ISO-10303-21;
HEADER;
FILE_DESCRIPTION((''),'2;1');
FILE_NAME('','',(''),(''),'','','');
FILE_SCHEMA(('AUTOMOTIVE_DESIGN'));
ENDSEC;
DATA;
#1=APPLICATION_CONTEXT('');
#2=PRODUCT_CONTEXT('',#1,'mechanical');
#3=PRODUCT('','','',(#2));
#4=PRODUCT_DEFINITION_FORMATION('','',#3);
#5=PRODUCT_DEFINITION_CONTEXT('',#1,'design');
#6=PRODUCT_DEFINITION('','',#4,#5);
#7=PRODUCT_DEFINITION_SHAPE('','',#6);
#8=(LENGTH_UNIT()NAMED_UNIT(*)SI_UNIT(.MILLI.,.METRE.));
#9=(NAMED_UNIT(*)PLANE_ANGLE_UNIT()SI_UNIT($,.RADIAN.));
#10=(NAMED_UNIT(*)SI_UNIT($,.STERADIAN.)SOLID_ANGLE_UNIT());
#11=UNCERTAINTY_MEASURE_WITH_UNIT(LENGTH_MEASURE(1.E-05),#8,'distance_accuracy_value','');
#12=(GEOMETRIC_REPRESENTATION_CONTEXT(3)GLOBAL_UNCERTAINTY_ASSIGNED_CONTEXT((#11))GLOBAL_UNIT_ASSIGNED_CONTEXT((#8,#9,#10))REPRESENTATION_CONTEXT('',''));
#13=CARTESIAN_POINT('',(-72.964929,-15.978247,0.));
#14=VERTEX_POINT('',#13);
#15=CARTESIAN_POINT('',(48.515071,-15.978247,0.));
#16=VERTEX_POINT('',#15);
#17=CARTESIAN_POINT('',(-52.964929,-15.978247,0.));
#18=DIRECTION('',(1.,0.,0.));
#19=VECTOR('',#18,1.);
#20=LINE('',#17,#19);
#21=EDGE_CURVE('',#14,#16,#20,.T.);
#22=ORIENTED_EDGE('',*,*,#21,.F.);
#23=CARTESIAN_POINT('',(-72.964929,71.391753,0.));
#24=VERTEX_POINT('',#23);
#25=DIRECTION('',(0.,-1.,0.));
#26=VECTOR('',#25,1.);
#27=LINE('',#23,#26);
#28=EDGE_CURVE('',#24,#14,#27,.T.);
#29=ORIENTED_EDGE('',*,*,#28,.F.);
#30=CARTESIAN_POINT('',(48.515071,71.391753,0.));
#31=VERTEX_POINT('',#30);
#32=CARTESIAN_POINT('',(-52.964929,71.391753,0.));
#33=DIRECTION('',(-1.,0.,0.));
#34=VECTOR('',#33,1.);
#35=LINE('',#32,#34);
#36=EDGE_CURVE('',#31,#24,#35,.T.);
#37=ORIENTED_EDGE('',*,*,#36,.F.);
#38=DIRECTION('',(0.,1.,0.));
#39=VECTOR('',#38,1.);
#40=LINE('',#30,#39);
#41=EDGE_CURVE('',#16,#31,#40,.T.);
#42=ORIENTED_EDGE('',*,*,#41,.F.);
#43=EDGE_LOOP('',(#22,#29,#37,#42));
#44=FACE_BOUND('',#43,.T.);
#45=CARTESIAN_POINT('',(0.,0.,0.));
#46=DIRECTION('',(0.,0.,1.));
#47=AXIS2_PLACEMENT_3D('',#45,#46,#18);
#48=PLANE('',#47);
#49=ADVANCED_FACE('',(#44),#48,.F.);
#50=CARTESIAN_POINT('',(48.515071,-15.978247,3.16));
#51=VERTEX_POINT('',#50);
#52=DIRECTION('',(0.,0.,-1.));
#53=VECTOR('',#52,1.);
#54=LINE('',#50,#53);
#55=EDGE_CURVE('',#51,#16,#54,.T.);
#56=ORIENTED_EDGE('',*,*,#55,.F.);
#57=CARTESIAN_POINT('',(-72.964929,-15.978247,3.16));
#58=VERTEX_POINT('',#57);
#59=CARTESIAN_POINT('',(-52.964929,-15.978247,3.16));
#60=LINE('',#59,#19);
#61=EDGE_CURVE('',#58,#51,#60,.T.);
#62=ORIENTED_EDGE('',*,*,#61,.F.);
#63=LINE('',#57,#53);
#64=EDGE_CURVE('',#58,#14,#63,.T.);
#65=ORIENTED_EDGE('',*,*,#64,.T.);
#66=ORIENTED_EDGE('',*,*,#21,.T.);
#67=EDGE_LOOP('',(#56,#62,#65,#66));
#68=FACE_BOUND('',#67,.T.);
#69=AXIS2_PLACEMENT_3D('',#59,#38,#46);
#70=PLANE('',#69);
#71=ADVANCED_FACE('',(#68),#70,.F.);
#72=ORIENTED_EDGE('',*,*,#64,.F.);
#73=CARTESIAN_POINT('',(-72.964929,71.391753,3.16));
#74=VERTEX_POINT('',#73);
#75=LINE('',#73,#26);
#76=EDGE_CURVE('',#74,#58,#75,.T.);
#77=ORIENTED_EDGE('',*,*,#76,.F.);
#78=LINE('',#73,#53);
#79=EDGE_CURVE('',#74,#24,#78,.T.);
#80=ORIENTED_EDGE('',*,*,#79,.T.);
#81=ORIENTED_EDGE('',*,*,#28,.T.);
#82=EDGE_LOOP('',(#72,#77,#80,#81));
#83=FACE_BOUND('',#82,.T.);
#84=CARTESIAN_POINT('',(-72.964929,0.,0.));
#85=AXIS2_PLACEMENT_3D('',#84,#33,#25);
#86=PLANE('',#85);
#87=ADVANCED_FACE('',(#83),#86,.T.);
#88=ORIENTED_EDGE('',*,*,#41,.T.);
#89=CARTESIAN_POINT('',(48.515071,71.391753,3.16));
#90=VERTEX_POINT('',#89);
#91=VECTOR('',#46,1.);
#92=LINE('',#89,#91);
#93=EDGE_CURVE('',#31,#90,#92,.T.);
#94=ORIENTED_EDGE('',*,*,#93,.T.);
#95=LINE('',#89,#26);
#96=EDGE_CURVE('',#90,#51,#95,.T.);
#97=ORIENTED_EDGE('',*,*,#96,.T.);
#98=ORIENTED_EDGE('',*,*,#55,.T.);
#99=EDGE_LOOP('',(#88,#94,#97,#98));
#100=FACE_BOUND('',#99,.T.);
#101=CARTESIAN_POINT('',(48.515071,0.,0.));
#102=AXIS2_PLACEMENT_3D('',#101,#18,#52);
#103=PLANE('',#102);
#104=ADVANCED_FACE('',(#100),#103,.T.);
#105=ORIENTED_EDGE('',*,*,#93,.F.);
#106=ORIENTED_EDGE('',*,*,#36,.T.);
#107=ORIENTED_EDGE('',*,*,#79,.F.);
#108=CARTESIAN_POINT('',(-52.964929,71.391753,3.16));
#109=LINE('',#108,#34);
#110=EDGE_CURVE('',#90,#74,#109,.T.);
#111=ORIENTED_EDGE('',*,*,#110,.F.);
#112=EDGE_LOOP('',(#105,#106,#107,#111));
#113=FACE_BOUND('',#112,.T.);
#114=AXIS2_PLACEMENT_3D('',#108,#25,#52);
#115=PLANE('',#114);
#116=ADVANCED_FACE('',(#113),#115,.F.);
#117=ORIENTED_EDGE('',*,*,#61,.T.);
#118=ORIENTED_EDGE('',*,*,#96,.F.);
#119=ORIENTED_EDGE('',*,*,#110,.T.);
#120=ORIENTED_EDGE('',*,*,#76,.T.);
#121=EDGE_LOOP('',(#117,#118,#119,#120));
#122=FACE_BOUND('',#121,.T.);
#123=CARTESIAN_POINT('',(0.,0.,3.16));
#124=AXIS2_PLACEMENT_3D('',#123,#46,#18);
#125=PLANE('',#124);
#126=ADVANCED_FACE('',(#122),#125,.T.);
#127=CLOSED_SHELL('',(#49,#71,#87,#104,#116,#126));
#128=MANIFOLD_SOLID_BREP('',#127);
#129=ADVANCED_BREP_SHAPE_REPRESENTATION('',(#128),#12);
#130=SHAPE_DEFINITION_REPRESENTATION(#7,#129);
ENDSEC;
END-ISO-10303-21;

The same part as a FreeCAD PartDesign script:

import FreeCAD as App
import Part
import Sketcher
from FreeCAD import Vector

doc = App.newDocument("Part")
body = doc.addObject("PartDesign::Body", "Body")

# Sketch on XY plane
sketch1 = body.newObject("Sketcher::SketchObject", "Sketch")
sketch1.AttachmentSupport = (doc.getObject("XY_Plane"), [""])
sketch1.MapMode = "FlatFace"
sketch1.addGeometry(Part.LineSegment(Vector(-52.964929, 71.391753, 0), Vector(-52.964929, -15.978247, 0)), False)
sketch1.addGeometry(Part.LineSegment(Vector(-52.964929, -15.978247, 0), Vector(24.375071, -15.978247, 0)), False)
sketch1.addGeometry(Part.LineSegment(Vector(24.375071, -15.978247, 0), Vector(24.375071, 71.391753, 0)), False)
sketch1.addGeometry(Part.LineSegment(Vector(24.375071, 71.391753, 0), Vector(-52.964929, 71.391753, 0)), False)
sketch1.addConstraint(Sketcher.Constraint("Coincident", 0, 2, 1, 1))
sketch1.addConstraint(Sketcher.Constraint("Coincident", 1, 2, 2, 1))
sketch1.addConstraint(Sketcher.Constraint("Coincident", 2, 2, 3, 1))
sketch1.addConstraint(Sketcher.Constraint("Coincident", 3, 2, 0, 1))
sketch1.addConstraint(Sketcher.Constraint("Vertical", 0))
sketch1.addConstraint(Sketcher.Constraint("Horizontal", 1))
sketch1.addConstraint(Sketcher.Constraint("Vertical", 2))
sketch1.addConstraint(Sketcher.Constraint("Horizontal", 3))
sketch1.addConstraint(Sketcher.Constraint("DistanceX", 1, 1, 1, 2, 77.34))
sketch1.addConstraint(Sketcher.Constraint("DistanceY", 0, 2, 0, 1, 87.37))
sketch1.addConstraint(Sketcher.Constraint("DistanceX", 0, 2, -1, 1, 52.964929))
sketch1.addConstraint(Sketcher.Constraint("DistanceY", 0, 2, -1, 1, 15.978247))
pad1 = body.newObject("PartDesign::Pad", "Pad")
pad1.Profile = sketch1
pad1.Length = 3.16

# Sketch on YZ plane
sketch2 = body.newObject("Sketcher::SketchObject", "Sketch001")
sketch2.AttachmentSupport = (doc.getObject("YZ_Plane"), [""])
sketch2.MapMode = "FlatFace"
sketch2.AttachmentOffset = App.Placement(Vector(0, 0, 24.375071), App.Rotation())
sketch2.addGeometry(Part.LineSegment(Vector(71.391753, 3.16, 0), Vector(-15.978247, 3.16, 0)), False)
sketch2.addGeometry(Part.LineSegment(Vector(-15.978247, 3.16, 0), Vector(-15.978247, 0, 0)), False)
sketch2.addGeometry(Part.LineSegment(Vector(-15.978247, 0, 0), Vector(71.391753, 0, 0)), False)
sketch2.addGeometry(Part.LineSegment(Vector(71.391753, 0, 0), Vector(71.391753, 3.16, 0)), False)
sketch2.addConstraint(Sketcher.Constraint("Coincident", 0, 2, 1, 1))
sketch2.addConstraint(Sketcher.Constraint("Coincident", 1, 2, 2, 1))
sketch2.addConstraint(Sketcher.Constraint("Coincident", 2, 2, 3, 1))
sketch2.addConstraint(Sketcher.Constraint("Coincident", 3, 2, 0, 1))
sketch2.addConstraint(Sketcher.Constraint("Horizontal", 0))
sketch2.addConstraint(Sketcher.Constraint("Vertical", 1))
sketch2.addConstraint(Sketcher.Constraint("Horizontal", 2))
sketch2.addConstraint(Sketcher.Constraint("Vertical", 3))
sketch2.addConstraint(Sketcher.Constraint("PointOnObject", 1, 2, -1))
sketch2.addConstraint(Sketcher.Constraint("DistanceX", 0, 2, 0, 1, 87.37))
sketch2.addConstraint(Sketcher.Constraint("DistanceY", 1, 2, 1, 1, 3.16))
sketch2.addConstraint(Sketcher.Constraint("DistanceX", 0, 2, -1, 1, 15.978247))
pad2 = body.newObject("PartDesign::Pad", "Pad001")
pad2.Profile = sketch2
pad2.Length = 80

# Sketch on YZ plane
sketch3 = body.newObject("Sketcher::SketchObject", "Sketch002")
sketch3.AttachmentSupport = (doc.getObject("YZ_Plane"), [""])
sketch3.MapMode = "FlatFace"
sketch3.AttachmentOffset = App.Placement(Vector(0, 0, -52.964929), App.Rotation())
sketch3.addGeometry(Part.LineSegment(Vector(71.391753, 0, 0), Vector(-15.978247, 0, 0)), False)
sketch3.addGeometry(Part.LineSegment(Vector(-15.978247, 0, 0), Vector(-15.978247, 3.16, 0)), False)
sketch3.addGeometry(Part.LineSegment(Vector(-15.978247, 3.16, 0), Vector(71.391753, 3.16, 0)), False)
sketch3.addGeometry(Part.LineSegment(Vector(71.391753, 3.16, 0), Vector(71.391753, 0, 0)), False)
sketch3.addConstraint(Sketcher.Constraint("Coincident", 0, 2, 1, 1))
sketch3.addConstraint(Sketcher.Constraint("Coincident", 1, 2, 2, 1))
sketch3.addConstraint(Sketcher.Constraint("Coincident", 2, 2, 3, 1))
sketch3.addConstraint(Sketcher.Constraint("Coincident", 3, 2, 0, 1))
sketch3.addConstraint(Sketcher.Constraint("Horizontal", 0))
sketch3.addConstraint(Sketcher.Constraint("Vertical", 1))
sketch3.addConstraint(Sketcher.Constraint("Horizontal", 2))
sketch3.addConstraint(Sketcher.Constraint("Vertical", 3))
sketch3.addConstraint(Sketcher.Constraint("PointOnObject", 0, 2, -1))
sketch3.addConstraint(Sketcher.Constraint("DistanceX", 0, 2, 0, 1, 87.37))
sketch3.addConstraint(Sketcher.Constraint("DistanceY", 1, 1, 1, 2, 3.16))
sketch3.addConstraint(Sketcher.Constraint("DistanceX", 0, 2, -1, 1, 15.978247))
pad3 = body.newObject("PartDesign::Pad", "Pad002")
pad3.Profile = sketch3
pad3.Length = 60
pad3.Reversed = True

# Sketch on YZ plane
sketch4 = body.newObject("Sketcher::SketchObject", "Sketch003")
sketch4.AttachmentSupport = (doc.getObject("YZ_Plane"), [""])
sketch4.MapMode = "FlatFace"
sketch4.AttachmentOffset = App.Placement(Vector(0, 0, 104.375071), App.Rotation())
sketch4.addGeometry(Part.LineSegment(Vector(71.391753, 3.16, 0), Vector(-15.978247, 3.16, 0)), False)
sketch4.addGeometry(Part.LineSegment(Vector(-15.978247, 3.16, 0), Vector(-15.978247, 0, 0)), False)
sketch4.addGeometry(Part.LineSegment(Vector(-15.978247, 0, 0), Vector(71.391753, 0, 0)), False)
sketch4.addGeometry(Part.LineSegment(Vector(71.391753, 0, 0), Vector(71.391753, 3.16, 0)), False)
sketch4.addConstraint(Sketcher.Constraint("Coincident", 0, 2, 1, 1))
sketch4.addConstraint(Sketcher.Constraint("Coincident", 1, 2, 2, 1))
sketch4.addConstraint(Sketcher.Constraint("Coincident", 2, 2, 3, 1))
sketch4.addConstraint(Sketcher.Constraint("Coincident", 3, 2, 0, 1))
sketch4.addConstraint(Sketcher.Constraint("Horizontal", 0))
sketch4.addConstraint(Sketcher.Constraint("Vertical", 1))
sketch4.addConstraint(Sketcher.Constraint("Horizontal", 2))
sketch4.addConstraint(Sketcher.Constraint("Vertical", 3))
sketch4.addConstraint(Sketcher.Constraint("PointOnObject", 1, 2, -1))
sketch4.addConstraint(Sketcher.Constraint("DistanceX", 0, 2, 0, 1, 87.37))
sketch4.addConstraint(Sketcher.Constraint("DistanceY", 1, 2, 1, 1, 3.16))
sketch4.addConstraint(Sketcher.Constraint("DistanceX", 0, 2, -1, 1, 15.978247))
pad4 = body.newObject("PartDesign::Pad", "Pad003")
pad4.Profile = sketch4
pad4.Length = 113

# Sketch on YZ plane
sketch5 = body.newObject("Sketcher::SketchObject", "Sketch004")
sketch5.AttachmentSupport = (doc.getObject("YZ_Plane"), [""])
sketch5.MapMode = "FlatFace"
sketch5.AttachmentOffset = App.Placement(Vector(0, 0, 217.375071), App.Rotation())
sketch5.addGeometry(Part.LineSegment(Vector(71.391753, 3.16, 0), Vector(-15.978247, 3.16, 0)), False)
sketch5.addGeometry(Part.LineSegment(Vector(-15.978247, 3.16, 0), Vector(-15.978247, 0, 0)), False)
sketch5.addGeometry(Part.LineSegment(Vector(-15.978247, 0, 0), Vector(71.391753, 0, 0)), False)
sketch5.addGeometry(Part.LineSegment(Vector(71.391753, 0, 0), Vector(71.391753, 3.16, 0)), False)
sketch5.addConstraint(Sketcher.Constraint("Coincident", 0, 2, 1, 1))
sketch5.addConstraint(Sketcher.Constraint("Coincident", 1, 2, 2, 1))
sketch5.addConstraint(Sketcher.Constraint("Coincident", 2, 2, 3, 1))
sketch5.addConstraint(Sketcher.Constraint("Coincident", 3, 2, 0, 1))
sketch5.addConstraint(Sketcher.Constraint("Horizontal", 0))
sketch5.addConstraint(Sketcher.Constraint("Vertical", 1))
sketch5.addConstraint(Sketcher.Constraint("Horizontal", 2))
sketch5.addConstraint(Sketcher.Constraint("Vertical", 3))
sketch5.addConstraint(Sketcher.Constraint("PointOnObject", 1, 2, -1))
sketch5.addConstraint(Sketcher.Constraint("DistanceX", 0, 2, 0, 1, 87.37))
sketch5.addConstraint(Sketcher.Constraint("DistanceY", 1, 2, 1, 1, 3.16))
sketch5.addConstraint(Sketcher.Constraint("DistanceX", 0, 2, -1, 1, 15.978247))
pocket1 = body.newObject("PartDesign::Pocket", "Pocket")
pocket1.Profile = sketch5
pocket1.Length = 17.86

# Sketch on XY plane
sketch6 = body.newObject("Sketcher::SketchObject", "Sketch005")
sketch6.AttachmentSupport = (doc.getObject("XY_Plane"), [""])
sketch6.MapMode = "FlatFace"
sketch6.AttachmentOffset = App.Placement(Vector(0, 0, 3.16), App.Rotation())
sketch6.addGeometry(Part.Circle(Vector(175.79356, 23.475298, 0), Vector(0, 0, 1), 12.75), False)
sketch6.addConstraint(Sketcher.Constraint("Diameter", 0, 25.5))
sketch6.addConstraint(Sketcher.Constraint("DistanceX", -1, 1, 0, 3, 175.79356))
sketch6.addConstraint(Sketcher.Constraint("DistanceY", -1, 1, 0, 3, 23.475298))
pocket2 = body.newObject("PartDesign::Pocket", "Pocket001")
pocket2.Profile = sketch6
pocket2.Length = 10

# Sketch on YZ plane
sketch7 = body.newObject("Sketcher::SketchObject", "Sketch006")
sketch7.AttachmentSupport = (doc.getObject("YZ_Plane"), [""])
sketch7.MapMode = "FlatFace"
sketch7.AttachmentOffset = App.Placement(Vector(0, 0, 199.515071), App.Rotation())
sketch7.addGeometry(Part.LineSegment(Vector(71.391753, 3.16, 0), Vector(-15.978247, 3.16, 0)), False)
sketch7.addGeometry(Part.LineSegment(Vector(-15.978247, 3.16, 0), Vector(-15.978247, 0, 0)), False)
sketch7.addGeometry(Part.LineSegment(Vector(-15.978247, 0, 0), Vector(71.391753, 0, 0)), False)
sketch7.addGeometry(Part.LineSegment(Vector(71.391753, 0, 0), Vector(71.391753, 3.16, 0)), False)
sketch7.addConstraint(Sketcher.Constraint("Coincident", 0, 2, 1, 1))
sketch7.addConstraint(Sketcher.Constraint("Coincident", 1, 2, 2, 1))
sketch7.addConstraint(Sketcher.Constraint("Coincident", 2, 2, 3, 1))
sketch7.addConstraint(Sketcher.Constraint("Coincident", 3, 2, 0, 1))
sketch7.addConstraint(Sketcher.Constraint("Horizontal", 0))
sketch7.addConstraint(Sketcher.Constraint("Vertical", 1))
sketch7.addConstraint(Sketcher.Constraint("Horizontal", 2))
sketch7.addConstraint(Sketcher.Constraint("Vertical", 3))
sketch7.addConstraint(Sketcher.Constraint("PointOnObject", 1, 2, -1))
sketch7.addConstraint(Sketcher.Constraint("DistanceX", 0, 2, 0, 1, 87.37))
sketch7.addConstraint(Sketcher.Constraint("DistanceY", 1, 2, 1, 1, 3.16))
sketch7.addConstraint(Sketcher.Constraint("DistanceX", 0, 2, -1, 1, 15.978247))
pocket3 = body.newObject("PartDesign::Pocket", "Pocket002")
pocket3.Profile = sketch7
pocket3.Length = 171

# Sketch on YZ plane
sketch8 = body.newObject("Sketcher::SketchObject", "Sketch007")
sketch8.AttachmentSupport = (doc.getObject("YZ_Plane"), [""])
sketch8.MapMode = "FlatFace"
sketch8.AttachmentOffset = App.Placement(Vector(0, 0, -112.964929), App.Rotation())
sketch8.addGeometry(Part.LineSegment(Vector(71.391753, 0, 0), Vector(-15.978247, 0, 0)), False)
sketch8.addGeometry(Part.LineSegment(Vector(-15.978247, 0, 0), Vector(-15.978247, 3.16, 0)), False)
sketch8.addGeometry(Part.LineSegment(Vector(-15.978247, 3.16, 0), Vector(71.391753, 3.16, 0)), False)
sketch8.addGeometry(Part.LineSegment(Vector(71.391753, 3.16, 0), Vector(71.391753, 0, 0)), False)
sketch8.addConstraint(Sketcher.Constraint("Coincident", 0, 2, 1, 1))
sketch8.addConstraint(Sketcher.Constraint("Coincident", 1, 2, 2, 1))
sketch8.addConstraint(Sketcher.Constraint("Coincident", 2, 2, 3, 1))
sketch8.addConstraint(Sketcher.Constraint("Coincident", 3, 2, 0, 1))
sketch8.addConstraint(Sketcher.Constraint("Horizontal", 0))
sketch8.addConstraint(Sketcher.Constraint("Vertical", 1))
sketch8.addConstraint(Sketcher.Constraint("Horizontal", 2))
sketch8.addConstraint(Sketcher.Constraint("Vertical", 3))
sketch8.addConstraint(Sketcher.Constraint("PointOnObject", 0, 2, -1))
sketch8.addConstraint(Sketcher.Constraint("DistanceX", 0, 2, 0, 1, 87.37))
sketch8.addConstraint(Sketcher.Constraint("DistanceY", 1, 1, 1, 2, 3.16))
sketch8.addConstraint(Sketcher.Constraint("DistanceX", 0, 2, -1, 1, 15.978247))
pocket4 = body.newObject("PartDesign::Pocket", "Pocket003")
pocket4.Profile = sketch8
pocket4.Length = 60
pocket4.Reversed = True

# Sketch on YZ plane
sketch9 = body.newObject("Sketcher::SketchObject", "Sketch008")
sketch9.AttachmentSupport = (doc.getObject("YZ_Plane"), [""])
sketch9.MapMode = "FlatFace"
sketch9.AttachmentOffset = App.Placement(Vector(0, 0, -52.964929), App.Rotation())
sketch9.addGeometry(Part.LineSegment(Vector(71.391753, 0, 0), Vector(-15.978247, 0, 0)), False)
sketch9.addGeometry(Part.LineSegment(Vector(-15.978247, 0, 0), Vector(-15.978247, 3.16, 0)), False)
sketch9.addGeometry(Part.LineSegment(Vector(-15.978247, 3.16, 0), Vector(71.391753, 3.16, 0)), False)
sketch9.addGeometry(Part.LineSegment(Vector(71.391753, 3.16, 0), Vector(71.391753, 0, 0)), False)
sketch9.addConstraint(Sketcher.Constraint("Coincident", 0, 2, 1, 1))
sketch9.addConstraint(Sketcher.Constraint("Coincident", 1, 2, 2, 1))
sketch9.addConstraint(Sketcher.Constraint("Coincident", 2, 2, 3, 1))
sketch9.addConstraint(Sketcher.Constraint("Coincident", 3, 2, 0, 1))
sketch9.addConstraint(Sketcher.Constraint("Horizontal", 0))
sketch9.addConstraint(Sketcher.Constraint("Vertical", 1))
sketch9.addConstraint(Sketcher.Constraint("Horizontal", 2))
sketch9.addConstraint(Sketcher.Constraint("Vertical", 3))
sketch9.addConstraint(Sketcher.Constraint("PointOnObject", 0, 2, -1))
sketch9.addConstraint(Sketcher.Constraint("DistanceX", 0, 2, 0, 1, 87.37))
sketch9.addConstraint(Sketcher.Constraint("DistanceY", 1, 1, 1, 2, 3.16))
sketch9.addConstraint(Sketcher.Constraint("DistanceX", 0, 2, -1, 1, 15.978247))
pad5 = body.newObject("PartDesign::Pad", "Pad004")
pad5.Profile = sketch9
pad5.Length = 20
pad5.Reversed = True

# Sketch on YZ plane
sketch10 = body.newObject("Sketcher::SketchObject", "Sketch009")
sketch10.AttachmentSupport = (doc.getObject("YZ_Plane"), [""])
sketch10.MapMode = "FlatFace"
sketch10.AttachmentOffset = App.Placement(Vector(0, 0, 28.515071), App.Rotation())
sketch10.addGeometry(Part.LineSegment(Vector(71.391753, 3.16, 0), Vector(-15.978247, 3.16, 0)), False)
sketch10.addGeometry(Part.LineSegment(Vector(-15.978247, 3.16, 0), Vector(-15.978247, 0, 0)), False)
sketch10.addGeometry(Part.LineSegment(Vector(-15.978247, 0, 0), Vector(71.391753, 0, 0)), False)
sketch10.addGeometry(Part.LineSegment(Vector(71.391753, 0, 0), Vector(71.391753, 3.16, 0)), False)
sketch10.addConstraint(Sketcher.Constraint("Coincident", 0, 2, 1, 1))
sketch10.addConstraint(Sketcher.Constraint("Coincident", 1, 2, 2, 1))
sketch10.addConstraint(Sketcher.Constraint("Coincident", 2, 2, 3, 1))
sketch10.addConstraint(Sketcher.Constraint("Coincident", 3, 2, 0, 1))
sketch10.addConstraint(Sketcher.Constraint("Horizontal", 0))
sketch10.addConstraint(Sketcher.Constraint("Vertical", 1))
sketch10.addConstraint(Sketcher.Constraint("Horizontal", 2))
sketch10.addConstraint(Sketcher.Constraint("Vertical", 3))
sketch10.addConstraint(Sketcher.Constraint("PointOnObject", 1, 2, -1))
sketch10.addConstraint(Sketcher.Constraint("DistanceX", 0, 2, 0, 1, 87.37))
sketch10.addConstraint(Sketcher.Constraint("DistanceY", 1, 2, 1, 1, 3.16))
sketch10.addConstraint(Sketcher.Constraint("DistanceX", 0, 2, -1, 1, 15.978247))
pad6 = body.newObject("PartDesign::Pad", "Pad005")
pad6.Profile = sketch10
pad6.Length = 20

doc.recompute()
